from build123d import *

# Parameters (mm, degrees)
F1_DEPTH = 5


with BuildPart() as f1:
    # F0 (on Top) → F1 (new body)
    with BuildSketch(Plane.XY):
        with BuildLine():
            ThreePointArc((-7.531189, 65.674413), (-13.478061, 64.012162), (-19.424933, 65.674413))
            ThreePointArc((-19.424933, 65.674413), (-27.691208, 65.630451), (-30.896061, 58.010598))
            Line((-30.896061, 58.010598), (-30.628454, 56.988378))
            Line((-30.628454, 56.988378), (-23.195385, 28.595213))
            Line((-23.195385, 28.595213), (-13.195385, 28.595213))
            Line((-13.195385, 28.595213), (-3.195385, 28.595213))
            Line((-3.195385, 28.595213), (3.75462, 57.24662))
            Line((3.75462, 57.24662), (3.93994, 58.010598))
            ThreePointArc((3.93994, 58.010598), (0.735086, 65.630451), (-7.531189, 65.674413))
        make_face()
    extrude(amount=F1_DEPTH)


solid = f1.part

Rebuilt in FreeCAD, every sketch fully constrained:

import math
import FreeCAD as App
import Part
import Sketcher

doc = App.newDocument("Part")
params = doc.addObject("Spreadsheet::Sheet", "Params")
for row, (alias, value) in enumerate([
    ("sketch1_radius", "7.5 mm"),
    ("sketch1_width", "20 mm"),
    ("pad1_length", "5 mm"),
], start=1):
    params.set(f"A{row}", alias)
    params.set(f"B{row}", "=" + value)
    params.setAlias(f"B{row}", alias)

body = doc.addObject("PartDesign::Body", "Body")

# Sketch on XY plane
sketch1 = body.newObject("Sketcher::SketchObject", "Sketch")
sketch1.AttachmentSupport = (doc.getObject("XY_Plane"), [""])
sketch1.MapMode = "FlatFace"
sketch1.addGeometry([
    Part.ArcOfCircle(Part.Circle(App.Vector(-13.478061, 75.481057, 0), App.Vector(0, 0, 1), 11.468895), math.radians(-121.233148), math.radians(-58.766852)),  # 0
    Part.ArcOfCircle(Part.Circle(App.Vector(-23.524788, 59.394191, 0), App.Vector(0, 0, 1), 7.5), math.radians(56.862694), math.radians(190.630761)),  # 1
    Part.LineSegment(App.Vector(-30.896061, 58.010598, 0), App.Vector(-30.628454, 56.988378, 0)),  # 2
    Part.LineSegment(App.Vector(-30.628454, 56.988378, 0), App.Vector(-23.195385, 28.595213, 0)),  # 3
    Part.LineSegment(App.Vector(-23.195385, 28.595213, 0), App.Vector(-3.195385, 28.595213, 0)),  # 4
    Part.LineSegment(App.Vector(-3.195385, 28.595213, 0), App.Vector(3.75462, 57.24662, 0)),  # 5
    Part.LineSegment(App.Vector(3.75462, 57.24662, 0), App.Vector(3.93994, 58.010598, 0)),  # 6
    Part.ArcOfCircle(Part.Circle(App.Vector(-3.431334, 59.39419, 0), App.Vector(0, 0, 1), 7.500001), math.radians(-10.630752), math.radians(123.137302)),  # 7
], False)
sketch1.addConstraint([
    Sketcher.Constraint("Coincident", 0, 1, 1, 1),
    Sketcher.Constraint("Coincident", 1, 2, 2, 1),
    Sketcher.Constraint("Coincident", 2, 2, 3, 1),
    Sketcher.Constraint("Coincident", 3, 2, 4, 1),
    Sketcher.Constraint("Coincident", 4, 2, 5, 1),
    Sketcher.Constraint("Coincident", 5, 2, 6, 1),
    Sketcher.Constraint("Coincident", 6, 2, 7, 1),
    Sketcher.Constraint("Coincident", 7, 2, 0, 2),
    Sketcher.Constraint("Horizontal", 4),
    Sketcher.Constraint("Equal", 1, 7),
    Sketcher.Constraint("Parallel", 2, 3),
    Sketcher.Constraint("Parallel", 5, 6),
    Sketcher.Constraint("Horizontal", 1, 3, 7, 3),
    Sketcher.Constraint("Horizontal", 1, 2, 6, 2),
    Sketcher.Constraint("Horizontal", 0, 1, 7, 2),
    Sketcher.Constraint("Radius", 1, 7.5),
    Sketcher.Constraint("DistanceX", 4, 1, 4, 2, 20.0),
    Sketcher.Constraint("Radius", 0, 11.468895),
    Sketcher.Constraint("DistanceX", 1, 2, 0, 3, 17.418),
    Sketcher.Constraint("DistanceY", -1, 1, 1, 2, 58.010598),
    Sketcher.Constraint("DistanceX", 0, 1, 7, 3, 15.993599),
    Sketcher.Constraint("DistanceY", 3, 2, 0, 1, 37.0792),
    Sketcher.Constraint("DistanceX", 0, 3, -1, 1, 13.478061),
    Sketcher.Constraint("DistanceY", -1, 1, 1, 3, 59.394191),
    Sketcher.Constraint("DistanceX", -1, 1, 5, 2, 3.75462),
    Sketcher.Constraint("DistanceY", -1, 1, 5, 2, 57.24662),
    Sketcher.Constraint("DistanceY", 2, 2, 1, 2, 1.02222),
])
sketch1.setExpression("Constraints[15]", "Params.sketch1_radius")
sketch1.setExpression("Constraints[16]", "Params.sketch1_width")
pad1 = body.newObject("PartDesign::Pad", "Pad")
pad1.Profile = sketch1
pad1.setExpression("Length", "Params.pad1_length")

doc.recompute()
